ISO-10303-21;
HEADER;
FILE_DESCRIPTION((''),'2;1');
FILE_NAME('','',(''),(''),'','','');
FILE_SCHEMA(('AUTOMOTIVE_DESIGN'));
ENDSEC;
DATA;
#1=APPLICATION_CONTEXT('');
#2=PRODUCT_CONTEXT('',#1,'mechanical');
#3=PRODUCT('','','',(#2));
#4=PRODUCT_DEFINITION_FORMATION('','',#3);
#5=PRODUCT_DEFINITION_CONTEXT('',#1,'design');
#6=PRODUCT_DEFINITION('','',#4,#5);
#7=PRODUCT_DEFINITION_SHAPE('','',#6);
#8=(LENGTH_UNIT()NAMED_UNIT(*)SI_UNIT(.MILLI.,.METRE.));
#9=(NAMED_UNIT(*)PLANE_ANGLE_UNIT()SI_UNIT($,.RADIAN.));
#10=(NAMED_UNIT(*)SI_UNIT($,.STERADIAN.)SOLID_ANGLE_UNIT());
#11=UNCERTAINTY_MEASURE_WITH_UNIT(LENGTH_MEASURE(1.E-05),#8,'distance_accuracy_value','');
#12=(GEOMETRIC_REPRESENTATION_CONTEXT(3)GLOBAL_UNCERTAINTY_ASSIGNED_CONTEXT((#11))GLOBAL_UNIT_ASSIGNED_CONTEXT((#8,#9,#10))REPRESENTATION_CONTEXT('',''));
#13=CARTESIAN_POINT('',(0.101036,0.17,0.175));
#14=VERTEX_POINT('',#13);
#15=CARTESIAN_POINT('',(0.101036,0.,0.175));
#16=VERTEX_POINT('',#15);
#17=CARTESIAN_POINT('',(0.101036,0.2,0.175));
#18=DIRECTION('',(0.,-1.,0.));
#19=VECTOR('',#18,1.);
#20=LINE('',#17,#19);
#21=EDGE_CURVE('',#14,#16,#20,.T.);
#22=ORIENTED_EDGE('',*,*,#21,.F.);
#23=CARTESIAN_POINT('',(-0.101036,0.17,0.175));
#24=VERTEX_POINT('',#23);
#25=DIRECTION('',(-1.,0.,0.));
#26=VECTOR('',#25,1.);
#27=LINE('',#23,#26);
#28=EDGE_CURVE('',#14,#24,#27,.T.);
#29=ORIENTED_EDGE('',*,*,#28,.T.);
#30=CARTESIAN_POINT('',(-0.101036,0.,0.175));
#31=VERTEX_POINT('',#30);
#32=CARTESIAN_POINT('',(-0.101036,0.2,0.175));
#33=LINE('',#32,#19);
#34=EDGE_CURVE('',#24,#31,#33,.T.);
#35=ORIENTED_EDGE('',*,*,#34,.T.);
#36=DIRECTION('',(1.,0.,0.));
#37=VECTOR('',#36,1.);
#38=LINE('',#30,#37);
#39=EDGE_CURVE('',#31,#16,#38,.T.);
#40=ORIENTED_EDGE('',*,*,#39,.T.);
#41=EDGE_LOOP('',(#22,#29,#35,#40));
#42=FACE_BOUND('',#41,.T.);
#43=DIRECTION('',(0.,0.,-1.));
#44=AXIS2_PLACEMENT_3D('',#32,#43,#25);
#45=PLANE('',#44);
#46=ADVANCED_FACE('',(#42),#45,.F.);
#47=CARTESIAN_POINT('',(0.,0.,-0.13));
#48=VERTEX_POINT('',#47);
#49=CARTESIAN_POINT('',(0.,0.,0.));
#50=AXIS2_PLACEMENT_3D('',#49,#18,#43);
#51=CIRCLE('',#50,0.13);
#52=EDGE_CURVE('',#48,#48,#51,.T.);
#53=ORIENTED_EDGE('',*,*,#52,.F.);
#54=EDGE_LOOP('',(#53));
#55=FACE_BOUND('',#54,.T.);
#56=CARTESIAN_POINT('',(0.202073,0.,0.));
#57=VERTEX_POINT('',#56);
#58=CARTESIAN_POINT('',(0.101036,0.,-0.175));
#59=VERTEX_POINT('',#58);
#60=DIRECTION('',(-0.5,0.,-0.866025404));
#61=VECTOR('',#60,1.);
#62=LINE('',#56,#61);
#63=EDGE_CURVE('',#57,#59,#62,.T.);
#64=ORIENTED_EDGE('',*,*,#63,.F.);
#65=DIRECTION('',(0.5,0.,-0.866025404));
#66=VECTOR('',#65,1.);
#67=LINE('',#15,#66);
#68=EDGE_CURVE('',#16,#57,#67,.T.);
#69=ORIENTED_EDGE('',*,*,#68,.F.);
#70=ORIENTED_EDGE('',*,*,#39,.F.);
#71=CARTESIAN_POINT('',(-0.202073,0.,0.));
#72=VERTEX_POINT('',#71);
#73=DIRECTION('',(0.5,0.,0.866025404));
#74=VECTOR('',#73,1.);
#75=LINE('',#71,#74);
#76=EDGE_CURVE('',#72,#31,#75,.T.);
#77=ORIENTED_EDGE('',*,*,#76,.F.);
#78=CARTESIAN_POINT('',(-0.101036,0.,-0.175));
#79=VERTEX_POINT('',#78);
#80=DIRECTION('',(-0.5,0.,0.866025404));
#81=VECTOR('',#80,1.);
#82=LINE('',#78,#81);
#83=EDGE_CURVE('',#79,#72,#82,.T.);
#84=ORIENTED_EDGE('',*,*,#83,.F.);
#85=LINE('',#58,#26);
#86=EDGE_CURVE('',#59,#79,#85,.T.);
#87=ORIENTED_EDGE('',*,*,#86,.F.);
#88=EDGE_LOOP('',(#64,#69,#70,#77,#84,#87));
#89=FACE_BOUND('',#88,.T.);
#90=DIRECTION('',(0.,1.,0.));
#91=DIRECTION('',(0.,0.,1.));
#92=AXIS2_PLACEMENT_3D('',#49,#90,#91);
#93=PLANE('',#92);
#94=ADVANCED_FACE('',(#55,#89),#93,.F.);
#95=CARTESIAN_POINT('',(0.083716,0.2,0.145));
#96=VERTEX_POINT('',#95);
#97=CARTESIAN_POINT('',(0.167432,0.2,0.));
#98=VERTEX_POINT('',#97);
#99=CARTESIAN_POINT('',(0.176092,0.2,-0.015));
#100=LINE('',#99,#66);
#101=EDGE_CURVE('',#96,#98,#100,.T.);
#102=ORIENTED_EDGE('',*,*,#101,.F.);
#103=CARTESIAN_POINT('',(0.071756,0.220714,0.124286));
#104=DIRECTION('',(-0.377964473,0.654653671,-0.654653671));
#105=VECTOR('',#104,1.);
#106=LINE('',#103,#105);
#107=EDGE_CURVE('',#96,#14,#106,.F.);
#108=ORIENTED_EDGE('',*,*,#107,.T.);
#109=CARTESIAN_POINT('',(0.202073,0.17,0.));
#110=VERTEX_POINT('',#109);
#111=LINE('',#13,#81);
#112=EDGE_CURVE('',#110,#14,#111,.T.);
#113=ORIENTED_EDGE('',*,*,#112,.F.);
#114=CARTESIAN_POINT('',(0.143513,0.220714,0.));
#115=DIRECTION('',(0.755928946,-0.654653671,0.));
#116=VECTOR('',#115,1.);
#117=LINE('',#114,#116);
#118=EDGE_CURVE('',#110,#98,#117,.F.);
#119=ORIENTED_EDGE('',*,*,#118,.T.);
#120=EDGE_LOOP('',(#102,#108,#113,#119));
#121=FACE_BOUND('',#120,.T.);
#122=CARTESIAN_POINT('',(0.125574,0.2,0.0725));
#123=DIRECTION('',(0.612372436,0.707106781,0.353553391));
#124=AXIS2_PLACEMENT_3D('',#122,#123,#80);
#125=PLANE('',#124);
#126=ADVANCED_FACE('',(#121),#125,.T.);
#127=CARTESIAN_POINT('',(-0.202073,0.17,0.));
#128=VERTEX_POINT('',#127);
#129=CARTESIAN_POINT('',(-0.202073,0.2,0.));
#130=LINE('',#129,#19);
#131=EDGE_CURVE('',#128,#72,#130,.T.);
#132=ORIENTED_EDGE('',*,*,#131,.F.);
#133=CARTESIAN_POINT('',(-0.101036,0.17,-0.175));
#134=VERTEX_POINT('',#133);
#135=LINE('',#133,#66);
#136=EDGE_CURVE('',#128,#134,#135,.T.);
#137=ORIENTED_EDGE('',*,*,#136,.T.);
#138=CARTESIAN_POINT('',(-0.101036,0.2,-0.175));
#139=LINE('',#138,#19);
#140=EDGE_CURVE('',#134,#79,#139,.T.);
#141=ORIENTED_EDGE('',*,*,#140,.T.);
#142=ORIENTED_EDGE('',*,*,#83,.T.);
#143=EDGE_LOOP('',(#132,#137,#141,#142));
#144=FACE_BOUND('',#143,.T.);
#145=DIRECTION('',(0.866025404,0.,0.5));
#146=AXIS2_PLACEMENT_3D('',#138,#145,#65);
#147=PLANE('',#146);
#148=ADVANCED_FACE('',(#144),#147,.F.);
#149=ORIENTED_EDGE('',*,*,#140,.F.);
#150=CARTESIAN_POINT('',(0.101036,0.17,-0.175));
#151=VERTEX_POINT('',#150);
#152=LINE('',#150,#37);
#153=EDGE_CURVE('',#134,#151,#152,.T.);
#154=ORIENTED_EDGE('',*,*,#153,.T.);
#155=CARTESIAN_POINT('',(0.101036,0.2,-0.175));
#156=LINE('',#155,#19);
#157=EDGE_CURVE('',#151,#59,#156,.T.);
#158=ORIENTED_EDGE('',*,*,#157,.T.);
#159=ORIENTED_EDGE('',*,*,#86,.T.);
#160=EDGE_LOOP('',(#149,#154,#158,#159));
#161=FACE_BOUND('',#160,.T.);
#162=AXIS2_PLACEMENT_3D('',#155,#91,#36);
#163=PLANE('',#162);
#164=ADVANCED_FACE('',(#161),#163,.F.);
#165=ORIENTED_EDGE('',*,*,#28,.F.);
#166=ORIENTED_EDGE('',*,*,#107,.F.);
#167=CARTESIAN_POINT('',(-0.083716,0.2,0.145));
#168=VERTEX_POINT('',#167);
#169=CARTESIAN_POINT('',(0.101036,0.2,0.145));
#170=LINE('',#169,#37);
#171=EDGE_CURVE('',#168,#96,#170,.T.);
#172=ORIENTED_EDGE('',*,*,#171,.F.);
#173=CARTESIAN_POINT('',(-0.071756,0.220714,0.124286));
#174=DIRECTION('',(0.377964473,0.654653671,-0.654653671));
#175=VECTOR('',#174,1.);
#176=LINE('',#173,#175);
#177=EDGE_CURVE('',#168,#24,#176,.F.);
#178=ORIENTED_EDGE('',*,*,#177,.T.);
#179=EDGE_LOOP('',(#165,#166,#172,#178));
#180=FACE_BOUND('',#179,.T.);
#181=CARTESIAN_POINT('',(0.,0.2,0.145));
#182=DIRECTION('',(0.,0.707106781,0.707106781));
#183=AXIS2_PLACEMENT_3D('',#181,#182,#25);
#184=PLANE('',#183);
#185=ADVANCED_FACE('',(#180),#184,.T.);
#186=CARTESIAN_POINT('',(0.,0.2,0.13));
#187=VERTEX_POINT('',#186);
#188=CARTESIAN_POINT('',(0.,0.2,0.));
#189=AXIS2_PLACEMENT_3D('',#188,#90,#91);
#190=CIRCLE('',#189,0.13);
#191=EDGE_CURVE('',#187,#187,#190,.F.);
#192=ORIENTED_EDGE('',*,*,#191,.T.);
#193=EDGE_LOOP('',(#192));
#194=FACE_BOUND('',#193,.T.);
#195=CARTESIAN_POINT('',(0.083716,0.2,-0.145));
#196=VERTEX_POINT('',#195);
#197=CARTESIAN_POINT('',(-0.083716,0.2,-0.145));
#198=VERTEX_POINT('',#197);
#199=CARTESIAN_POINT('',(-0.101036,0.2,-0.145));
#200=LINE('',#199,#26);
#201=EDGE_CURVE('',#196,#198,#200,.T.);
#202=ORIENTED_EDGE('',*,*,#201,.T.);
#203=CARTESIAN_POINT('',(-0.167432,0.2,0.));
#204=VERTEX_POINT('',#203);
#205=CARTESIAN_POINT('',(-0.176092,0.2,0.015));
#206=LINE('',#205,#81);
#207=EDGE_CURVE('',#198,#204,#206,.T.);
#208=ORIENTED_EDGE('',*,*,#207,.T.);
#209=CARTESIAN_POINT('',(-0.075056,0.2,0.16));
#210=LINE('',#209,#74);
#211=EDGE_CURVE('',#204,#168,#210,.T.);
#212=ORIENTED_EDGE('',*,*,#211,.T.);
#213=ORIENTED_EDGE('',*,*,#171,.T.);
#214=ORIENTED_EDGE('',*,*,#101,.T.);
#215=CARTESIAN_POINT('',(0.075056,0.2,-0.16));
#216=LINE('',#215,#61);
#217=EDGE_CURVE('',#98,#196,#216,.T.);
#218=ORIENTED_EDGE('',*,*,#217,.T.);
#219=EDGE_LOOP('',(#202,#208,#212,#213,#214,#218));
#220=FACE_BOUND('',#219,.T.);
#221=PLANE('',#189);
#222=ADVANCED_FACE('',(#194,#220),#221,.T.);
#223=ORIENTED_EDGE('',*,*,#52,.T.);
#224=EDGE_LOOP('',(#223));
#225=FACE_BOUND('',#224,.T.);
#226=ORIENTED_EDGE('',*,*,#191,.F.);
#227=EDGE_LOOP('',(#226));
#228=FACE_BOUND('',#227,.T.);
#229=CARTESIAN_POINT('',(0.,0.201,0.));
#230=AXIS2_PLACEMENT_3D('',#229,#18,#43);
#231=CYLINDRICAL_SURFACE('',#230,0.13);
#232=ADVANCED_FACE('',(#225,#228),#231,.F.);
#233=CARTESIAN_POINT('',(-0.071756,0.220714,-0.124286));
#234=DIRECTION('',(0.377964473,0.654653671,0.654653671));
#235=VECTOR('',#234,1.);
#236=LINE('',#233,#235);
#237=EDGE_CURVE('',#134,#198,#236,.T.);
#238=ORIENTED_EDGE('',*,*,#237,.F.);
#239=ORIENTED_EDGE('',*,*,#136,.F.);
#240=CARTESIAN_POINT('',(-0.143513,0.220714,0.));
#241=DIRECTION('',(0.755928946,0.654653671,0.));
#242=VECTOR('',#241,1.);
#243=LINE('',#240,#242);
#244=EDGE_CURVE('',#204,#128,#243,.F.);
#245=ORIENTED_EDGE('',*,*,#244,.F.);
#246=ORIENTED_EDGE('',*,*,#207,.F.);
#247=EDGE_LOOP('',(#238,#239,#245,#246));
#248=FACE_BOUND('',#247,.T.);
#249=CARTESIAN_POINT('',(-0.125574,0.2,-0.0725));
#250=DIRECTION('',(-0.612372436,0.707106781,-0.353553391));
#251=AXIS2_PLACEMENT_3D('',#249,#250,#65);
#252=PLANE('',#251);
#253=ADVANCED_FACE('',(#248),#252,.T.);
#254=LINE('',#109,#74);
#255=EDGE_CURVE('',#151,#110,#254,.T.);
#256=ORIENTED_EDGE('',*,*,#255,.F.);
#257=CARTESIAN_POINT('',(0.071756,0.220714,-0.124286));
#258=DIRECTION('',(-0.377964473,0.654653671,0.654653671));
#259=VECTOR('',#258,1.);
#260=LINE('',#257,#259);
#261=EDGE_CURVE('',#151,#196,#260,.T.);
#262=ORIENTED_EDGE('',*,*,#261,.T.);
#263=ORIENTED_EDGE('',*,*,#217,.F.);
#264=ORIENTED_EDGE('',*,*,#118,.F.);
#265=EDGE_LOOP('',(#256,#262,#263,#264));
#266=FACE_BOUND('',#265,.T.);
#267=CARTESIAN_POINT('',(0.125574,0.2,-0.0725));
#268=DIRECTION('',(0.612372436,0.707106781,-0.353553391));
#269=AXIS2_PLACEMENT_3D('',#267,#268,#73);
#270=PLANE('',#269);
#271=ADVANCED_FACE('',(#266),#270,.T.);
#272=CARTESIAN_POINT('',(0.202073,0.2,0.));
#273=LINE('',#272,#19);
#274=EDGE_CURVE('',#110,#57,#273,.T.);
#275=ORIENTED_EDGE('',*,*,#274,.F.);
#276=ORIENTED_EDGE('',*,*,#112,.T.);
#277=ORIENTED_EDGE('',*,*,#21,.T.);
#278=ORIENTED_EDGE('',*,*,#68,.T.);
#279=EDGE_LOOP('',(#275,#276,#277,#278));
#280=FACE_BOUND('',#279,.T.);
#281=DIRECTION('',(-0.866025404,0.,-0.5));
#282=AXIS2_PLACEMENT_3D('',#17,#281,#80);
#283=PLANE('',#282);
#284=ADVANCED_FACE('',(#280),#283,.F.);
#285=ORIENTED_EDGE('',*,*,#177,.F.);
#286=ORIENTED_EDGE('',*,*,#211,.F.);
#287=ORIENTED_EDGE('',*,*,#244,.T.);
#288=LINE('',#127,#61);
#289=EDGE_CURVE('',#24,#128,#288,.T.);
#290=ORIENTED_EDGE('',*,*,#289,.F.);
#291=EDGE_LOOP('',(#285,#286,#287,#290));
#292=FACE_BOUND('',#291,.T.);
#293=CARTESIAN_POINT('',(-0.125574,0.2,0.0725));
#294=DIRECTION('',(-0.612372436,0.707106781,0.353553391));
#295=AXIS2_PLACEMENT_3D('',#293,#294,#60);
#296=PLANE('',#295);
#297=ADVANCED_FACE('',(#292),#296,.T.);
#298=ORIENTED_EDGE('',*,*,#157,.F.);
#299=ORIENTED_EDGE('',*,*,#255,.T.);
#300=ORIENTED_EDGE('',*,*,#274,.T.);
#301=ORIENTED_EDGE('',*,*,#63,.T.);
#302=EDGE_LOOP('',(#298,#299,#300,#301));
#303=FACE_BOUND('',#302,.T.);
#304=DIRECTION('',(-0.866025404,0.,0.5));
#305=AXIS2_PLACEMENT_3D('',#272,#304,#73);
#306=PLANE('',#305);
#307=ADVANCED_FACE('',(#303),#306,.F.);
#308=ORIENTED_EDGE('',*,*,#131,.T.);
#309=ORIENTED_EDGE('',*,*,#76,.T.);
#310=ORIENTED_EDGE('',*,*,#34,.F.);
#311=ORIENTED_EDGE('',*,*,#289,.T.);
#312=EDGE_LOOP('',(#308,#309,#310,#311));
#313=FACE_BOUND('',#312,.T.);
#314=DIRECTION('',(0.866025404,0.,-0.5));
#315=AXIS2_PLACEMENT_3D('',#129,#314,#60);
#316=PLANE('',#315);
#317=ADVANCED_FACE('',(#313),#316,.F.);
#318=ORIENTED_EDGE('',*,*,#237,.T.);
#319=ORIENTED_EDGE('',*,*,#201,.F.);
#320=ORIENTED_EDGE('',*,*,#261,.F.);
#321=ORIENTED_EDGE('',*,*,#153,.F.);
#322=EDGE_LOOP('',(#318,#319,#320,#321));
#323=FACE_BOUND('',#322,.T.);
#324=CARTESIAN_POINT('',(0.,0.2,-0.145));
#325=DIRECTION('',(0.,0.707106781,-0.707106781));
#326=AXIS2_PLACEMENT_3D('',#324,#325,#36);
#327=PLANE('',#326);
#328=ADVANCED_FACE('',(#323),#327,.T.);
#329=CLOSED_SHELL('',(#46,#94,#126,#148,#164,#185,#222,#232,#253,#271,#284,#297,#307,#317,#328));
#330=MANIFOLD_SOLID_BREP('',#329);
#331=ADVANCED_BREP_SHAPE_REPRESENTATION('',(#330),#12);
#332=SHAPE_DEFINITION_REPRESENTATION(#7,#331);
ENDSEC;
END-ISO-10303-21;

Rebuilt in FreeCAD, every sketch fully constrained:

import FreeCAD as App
import Part
import Sketcher
Q = App.Units.Quantity


def edges_at(feature, points):
    """Names of the edges that pass closest to the given points."""
    edges = feature.Shape.Edges
    near = lambda p: min(range(len(edges)), key=lambda i: edges[i].distToShape(Part.Vertex(*p))[0])
    return sorted({f"Edge{near(p) + 1}" for p in points})

doc = App.newDocument("Part")
body = doc.addObject("PartDesign::Body", "Body")

sketch1 = body.newObject("Sketcher::SketchObject", "Sketch")
sketch1.AttachmentSupport = (doc.getObject("XZ_Plane"), [""])
sketch1.MapMode = "FlatFace"
sketch1.addGeometry(Part.LineSegment(App.Vector(0.1, -0.17, 0), App.Vector(-0.1, -0.17, 0)), False)
sketch1.addGeometry(Part.LineSegment(App.Vector(-0.1, -0.17, 0), App.Vector(-0.2, 0, 0)), False)
sketch1.addGeometry(Part.LineSegment(App.Vector(-0.2, 0, 0), App.Vector(-0.1, 0.17, 0)), False)
sketch1.addGeometry(Part.LineSegment(App.Vector(-0.1, 0.17, 0), App.Vector(0.1, 0.17, 0)), False)
sketch1.addGeometry(Part.LineSegment(App.Vector(0.1, 0.17, 0), App.Vector(0.2, 0, 0)), False)
sketch1.addGeometry(Part.LineSegment(App.Vector(0.2, 0, 0), App.Vector(0.1, -0.17, 0)), False)
sketch1.addConstraint(Sketcher.Constraint("Coincident", 0, 2, 1, 1))
sketch1.addConstraint(Sketcher.Constraint("Coincident", 1, 2, 2, 1))
sketch1.addConstraint(Sketcher.Constraint("Coincident", 2, 2, 3, 1))
sketch1.addConstraint(Sketcher.Constraint("Coincident", 3, 2, 4, 1))
sketch1.addConstraint(Sketcher.Constraint("Coincident", 4, 2, 5, 1))
sketch1.addConstraint(Sketcher.Constraint("Coincident", 5, 2, 0, 1))
sketch1.addConstraint(Sketcher.Constraint("Horizontal", 0))
sketch1.addConstraint(Sketcher.Constraint("Horizontal", 3))
sketch1.addConstraint(Sketcher.Constraint("Symmetric", 0, 2, 3, 2, -1, 1))
sketch1.addConstraint(Sketcher.Constraint("Symmetric", 1, 2, 4, 2, -1, 1))
sketch1.addConstraint(Sketcher.Constraint("PointOnObject", 1, 2, -1))
sketch1.addConstraint(Sketcher.Constraint("Parallel", 2, 5))
sketch1.addConstraint(Sketcher.Constraint("Vertical", 0, 2, 2, 2))
sketch1.addConstraint(Sketcher.Constraint("Angle", 1, Q("120 deg")))
sketch1.addConstraint(Sketcher.Constraint("DistanceY", 0, 2, 2, 2, 0.35))
sketch1.addConstraint(Sketcher.Constraint("DistanceX", 0, 2, 0, 1, 0.202073))
pad1 = body.newObject("PartDesign::Pad", "Pad")
pad1.Profile = sketch1
pad1.Length = 0.2
pad1.Reversed = True

sketch2 = body.newObject("Sketcher::SketchObject", "Sketch001")
sketch2.AttachmentSupport = (doc.getObject("XZ_Plane"), [""])
sketch2.MapMode = "FlatFace"
sketch2.addGeometry(Part.Circle(App.Vector(0, 0, 0), App.Vector(0, 0, 1), 0.13), False)
sketch2.addConstraint(Sketcher.Constraint("Coincident", 0, 3, -1, 1))
sketch2.addConstraint(Sketcher.Constraint("Diameter", 0, 0.26))
pocket1 = body.newObject("PartDesign::Pocket", "Pocket")
pocket1.Profile = sketch2
pocket1.Type = "UpToFirst"
doc.recompute()

chamfer = body.newObject("PartDesign::Chamfer", "Chamfer")
chamfer.Base = (pocket1, edges_at(pocket1, [
    (-0.152, 0.2, -0.087),
    (-0.152, 0.2, 0.087),
    (0, 0.2, 0.175),
    (0.152, 0.2, 0.087),
    (0.152, 0.2, -0.087),
    (0, 0.2, -0.175),
]))
chamfer.Size = 0.03

doc.recompute()
